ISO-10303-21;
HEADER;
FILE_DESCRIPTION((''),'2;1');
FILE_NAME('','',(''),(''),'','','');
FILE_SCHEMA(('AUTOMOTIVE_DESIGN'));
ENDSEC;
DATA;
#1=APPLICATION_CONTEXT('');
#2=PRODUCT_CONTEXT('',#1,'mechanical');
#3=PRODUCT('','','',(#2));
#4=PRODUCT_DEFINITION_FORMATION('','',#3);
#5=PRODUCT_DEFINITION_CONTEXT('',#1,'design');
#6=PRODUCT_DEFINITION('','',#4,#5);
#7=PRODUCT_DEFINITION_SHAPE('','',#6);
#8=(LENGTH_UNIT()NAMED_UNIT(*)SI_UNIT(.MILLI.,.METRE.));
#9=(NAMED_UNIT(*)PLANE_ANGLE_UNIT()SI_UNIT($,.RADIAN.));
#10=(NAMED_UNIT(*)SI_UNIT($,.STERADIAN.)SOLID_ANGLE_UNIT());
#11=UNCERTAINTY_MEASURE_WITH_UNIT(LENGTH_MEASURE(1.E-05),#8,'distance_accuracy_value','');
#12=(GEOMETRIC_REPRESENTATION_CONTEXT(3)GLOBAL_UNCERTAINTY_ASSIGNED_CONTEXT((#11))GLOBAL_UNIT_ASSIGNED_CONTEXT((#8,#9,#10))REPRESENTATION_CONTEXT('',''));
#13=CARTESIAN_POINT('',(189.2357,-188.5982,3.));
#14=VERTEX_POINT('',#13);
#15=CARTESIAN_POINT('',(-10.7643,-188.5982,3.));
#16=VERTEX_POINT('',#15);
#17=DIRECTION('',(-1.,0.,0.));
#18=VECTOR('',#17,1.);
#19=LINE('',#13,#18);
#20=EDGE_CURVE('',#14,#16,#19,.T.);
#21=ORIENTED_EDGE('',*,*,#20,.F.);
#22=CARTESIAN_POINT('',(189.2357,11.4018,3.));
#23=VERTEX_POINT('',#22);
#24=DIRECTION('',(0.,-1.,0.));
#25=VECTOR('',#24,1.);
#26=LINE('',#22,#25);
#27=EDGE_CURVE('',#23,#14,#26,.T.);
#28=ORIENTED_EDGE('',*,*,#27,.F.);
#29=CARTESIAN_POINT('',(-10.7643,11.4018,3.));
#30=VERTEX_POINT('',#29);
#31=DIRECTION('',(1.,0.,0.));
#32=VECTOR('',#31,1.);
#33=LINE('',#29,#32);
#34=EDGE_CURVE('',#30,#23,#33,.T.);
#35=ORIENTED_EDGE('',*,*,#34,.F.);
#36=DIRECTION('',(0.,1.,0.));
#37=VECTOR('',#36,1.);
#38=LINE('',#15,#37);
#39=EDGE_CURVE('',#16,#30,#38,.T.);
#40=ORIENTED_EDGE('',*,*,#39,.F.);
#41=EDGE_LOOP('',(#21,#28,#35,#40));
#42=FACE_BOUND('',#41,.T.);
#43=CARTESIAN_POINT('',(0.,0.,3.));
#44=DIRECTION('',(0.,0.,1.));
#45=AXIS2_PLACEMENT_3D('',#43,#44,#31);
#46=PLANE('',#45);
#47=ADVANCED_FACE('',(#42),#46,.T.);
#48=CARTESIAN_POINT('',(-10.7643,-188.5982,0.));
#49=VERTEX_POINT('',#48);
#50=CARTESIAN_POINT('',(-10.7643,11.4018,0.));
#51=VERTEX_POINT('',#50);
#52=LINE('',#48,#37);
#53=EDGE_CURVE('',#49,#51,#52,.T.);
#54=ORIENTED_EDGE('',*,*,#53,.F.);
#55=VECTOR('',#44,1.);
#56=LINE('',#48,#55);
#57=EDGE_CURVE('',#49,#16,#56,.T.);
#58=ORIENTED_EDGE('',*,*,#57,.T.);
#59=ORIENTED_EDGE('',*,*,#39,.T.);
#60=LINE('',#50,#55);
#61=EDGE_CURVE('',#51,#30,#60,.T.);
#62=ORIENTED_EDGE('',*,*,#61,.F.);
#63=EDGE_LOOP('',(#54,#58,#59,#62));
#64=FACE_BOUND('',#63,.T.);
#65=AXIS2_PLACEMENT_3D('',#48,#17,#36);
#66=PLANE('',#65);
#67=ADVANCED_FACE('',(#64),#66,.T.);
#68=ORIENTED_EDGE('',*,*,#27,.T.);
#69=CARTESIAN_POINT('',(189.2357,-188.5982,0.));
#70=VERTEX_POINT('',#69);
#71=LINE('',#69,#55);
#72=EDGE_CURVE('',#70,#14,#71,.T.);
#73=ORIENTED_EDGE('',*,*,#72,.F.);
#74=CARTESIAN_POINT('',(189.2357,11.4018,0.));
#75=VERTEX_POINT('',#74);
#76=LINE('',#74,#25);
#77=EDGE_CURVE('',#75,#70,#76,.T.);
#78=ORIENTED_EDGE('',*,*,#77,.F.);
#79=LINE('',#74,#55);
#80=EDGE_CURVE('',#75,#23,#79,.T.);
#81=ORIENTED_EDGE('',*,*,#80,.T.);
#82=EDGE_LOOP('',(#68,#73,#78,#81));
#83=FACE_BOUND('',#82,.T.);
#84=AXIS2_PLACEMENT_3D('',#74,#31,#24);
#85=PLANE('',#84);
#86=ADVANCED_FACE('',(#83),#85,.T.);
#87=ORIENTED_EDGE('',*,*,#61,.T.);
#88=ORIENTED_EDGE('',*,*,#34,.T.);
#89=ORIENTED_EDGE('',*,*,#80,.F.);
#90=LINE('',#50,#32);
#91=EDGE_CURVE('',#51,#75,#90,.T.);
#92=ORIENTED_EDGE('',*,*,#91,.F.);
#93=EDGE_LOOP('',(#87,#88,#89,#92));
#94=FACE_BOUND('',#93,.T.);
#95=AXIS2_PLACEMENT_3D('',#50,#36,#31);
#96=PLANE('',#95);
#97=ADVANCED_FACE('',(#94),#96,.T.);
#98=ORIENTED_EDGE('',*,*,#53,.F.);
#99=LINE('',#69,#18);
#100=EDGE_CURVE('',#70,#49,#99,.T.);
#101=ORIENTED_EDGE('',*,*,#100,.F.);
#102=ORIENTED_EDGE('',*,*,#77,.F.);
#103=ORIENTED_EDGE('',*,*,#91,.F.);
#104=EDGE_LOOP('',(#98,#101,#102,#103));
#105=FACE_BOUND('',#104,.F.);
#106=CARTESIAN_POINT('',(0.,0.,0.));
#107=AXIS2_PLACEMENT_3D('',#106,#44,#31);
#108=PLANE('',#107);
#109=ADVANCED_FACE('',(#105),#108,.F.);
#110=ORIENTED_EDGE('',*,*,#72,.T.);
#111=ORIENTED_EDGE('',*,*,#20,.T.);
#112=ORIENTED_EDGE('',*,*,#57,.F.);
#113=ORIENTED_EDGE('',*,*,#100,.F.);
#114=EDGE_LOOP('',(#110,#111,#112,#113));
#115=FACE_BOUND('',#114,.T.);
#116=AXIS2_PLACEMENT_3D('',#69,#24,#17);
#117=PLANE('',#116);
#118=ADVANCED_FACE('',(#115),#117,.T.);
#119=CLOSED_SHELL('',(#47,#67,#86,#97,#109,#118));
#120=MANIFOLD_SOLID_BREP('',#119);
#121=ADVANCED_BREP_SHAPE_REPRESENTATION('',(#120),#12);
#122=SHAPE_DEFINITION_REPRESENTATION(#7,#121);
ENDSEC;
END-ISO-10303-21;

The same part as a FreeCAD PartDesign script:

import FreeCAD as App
import Part
import Sketcher

V = App.Vector
Q = App.Units.Quantity

doc = App.newDocument("Part")
body = doc.addObject("PartDesign::Body", "Body")

sketch1 = body.newObject("Sketcher::SketchObject", "Sketch")
sketch1.AttachmentSupport = (doc.getObject("XY_Plane"), [""])
sketch1.MapMode = "FlatFace"
sketch1.addGeometry(Part.LineSegment(V(189, 11, 0), V(-11, 11, 0)), False)
sketch1.addGeometry(Part.LineSegment(V(-11, 11, 0), V(-11, -189, 0)), False)
sketch1.addGeometry(Part.LineSegment(V(-11, -189, 0), V(189, -189, 0)), False)
sketch1.addGeometry(Part.LineSegment(V(189, -189, 0), V(189, 11, 0)), False)
sketch1.addConstraint(Sketcher.Constraint("Coincident", 0, 2, 1, 1))
sketch1.addConstraint(Sketcher.Constraint("Coincident", 1, 2, 2, 1))
sketch1.addConstraint(Sketcher.Constraint("Coincident", 2, 2, 3, 1))
sketch1.addConstraint(Sketcher.Constraint("Coincident", 3, 2, 0, 1))
sketch1.addConstraint(Sketcher.Constraint("Horizontal", 0))
sketch1.addConstraint(Sketcher.Constraint("Vertical", 1))
sketch1.addConstraint(Sketcher.Constraint("Horizontal", 2))
sketch1.addConstraint(Sketcher.Constraint("Vertical", 3))
sketch1.addConstraint(Sketcher.Constraint("Equal", 2, 1))
sketch1.addConstraint(Sketcher.Constraint("DistanceX", 0, 2, 0, 1, Q("200 mm")))
sketch1.addConstraint(Sketcher.Constraint("DistanceX", 0, 2, -1, 1, Q("10.7643 mm")))
sketch1.addConstraint(Sketcher.Constraint("DistanceY", -1, 1, 0, 2, Q("11.4018 mm")))
pad1 = body.newObject("PartDesign::Pad", "Pad")
pad1.Profile = sketch1
pad1.Length = 3

doc.recompute()
